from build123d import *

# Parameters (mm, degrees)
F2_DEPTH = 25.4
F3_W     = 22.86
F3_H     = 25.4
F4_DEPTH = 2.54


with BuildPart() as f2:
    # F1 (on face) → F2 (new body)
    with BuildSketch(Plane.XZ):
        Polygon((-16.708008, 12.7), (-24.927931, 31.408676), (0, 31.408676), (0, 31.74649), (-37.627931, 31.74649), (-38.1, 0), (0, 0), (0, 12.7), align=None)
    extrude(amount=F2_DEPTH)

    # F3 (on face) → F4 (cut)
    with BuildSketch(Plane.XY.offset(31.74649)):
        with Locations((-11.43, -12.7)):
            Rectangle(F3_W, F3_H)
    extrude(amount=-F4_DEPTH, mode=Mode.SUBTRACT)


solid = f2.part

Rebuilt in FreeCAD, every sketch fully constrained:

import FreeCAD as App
import Part
import Sketcher
from FreeCAD import Vector
Q = App.Units.Quantity

doc = App.newDocument("Part")
body = doc.addObject("PartDesign::Body", "Body")

# Sketch on XZ plane
sketch1 = doc.addObject("Sketcher::SketchObject", "Sketch")
body.addObject(sketch1)
sketch1.AttachmentSupport = (doc.XZ_Plane, [""])
sketch1.MapMode = "FlatFace"
sketch1.addGeometry([
    Part.LineSegment(Vector(-16.71, 12.7, 0), Vector(-24.93, 31.41, 0)),  # 0
    Part.LineSegment(Vector(-24.93, 31.41, 0), Vector(0, 31.41, 0)),  # 1
    Part.LineSegment(Vector(0, 31.41, 0), Vector(0, 31.75, 0)),  # 2
    Part.LineSegment(Vector(0, 31.75, 0), Vector(-37.63, 31.75, 0)),  # 3
    Part.LineSegment(Vector(-37.63, 31.75, 0), Vector(-38.1, 0, 0)),  # 4
    Part.LineSegment(Vector(-38.1, 0, 0), Vector(0, 0, 0)),  # 5
    Part.LineSegment(Vector(0, 0, 0), Vector(0, 12.7, 0)),  # 6
    Part.LineSegment(Vector(0, 12.7, 0), Vector(-16.71, 12.7, 0)),  # 7
], False)
sketch1.addConstraint([
    Sketcher.Constraint("Coincident", 0, 2, 1, 1),
    Sketcher.Constraint("Coincident", 1, 2, 2, 1),
    Sketcher.Constraint("Coincident", 2, 2, 3, 1),
    Sketcher.Constraint("Coincident", 3, 2, 4, 1),
    Sketcher.Constraint("Coincident", 4, 2, 5, 1),
    Sketcher.Constraint("Coincident", 5, 2, 6, 1),
    Sketcher.Constraint("Coincident", 6, 2, 7, 1),
    Sketcher.Constraint("Coincident", 7, 2, 0, 1),
    Sketcher.Constraint("Horizontal", 1),
    Sketcher.Constraint("Vertical", 2),
    Sketcher.Constraint("Horizontal", 3),
    Sketcher.Constraint("Horizontal", 5),
    Sketcher.Constraint("Vertical", 6),
    Sketcher.Constraint("Horizontal", 7),
    Sketcher.Constraint("Coincident", 5, 2, -1, 1),
    Sketcher.Constraint("PointOnObject", 1, 2, -2),
    Sketcher.Constraint("DistanceX", 5, 1, 5, 2, Q("1.5 in")),
    Sketcher.Constraint("DistanceY", 6, 1, 6, 2, Q("0.5 in")),
    Sketcher.Constraint("DistanceX", 3, 2, 0, 2, Q("0.5 in")),
    Sketcher.Constraint("Distance", 4, Q("1.25 in")),
    Sketcher.Constraint("DistanceX", 1, 1, 1, 2, 24.927931),
    Sketcher.Constraint("DistanceX", 7, 2, 7, 1, 16.708008),
    Sketcher.Constraint("DistanceY", 2, 1, 2, 2, 0.337814),
])
pad1 = doc.addObject("PartDesign::Pad", "Pad")
body.addObject(pad1)
pad1.Profile = sketch1
pad1.Length = Q("1 in")

# Sketch on XY plane
sketch2 = doc.addObject("Sketcher::SketchObject", "Sketch001")
body.addObject(sketch2)
sketch2.AttachmentSupport = (doc.XY_Plane, [""])
sketch2.MapMode = "FlatFace"
sketch2.AttachmentOffset = App.Placement(Vector(0, 0, 31.74649), App.Rotation())
sketch2.addGeometry([
    Part.LineSegment(Vector(-23, 0, 0), Vector(-23, -25, 0)),
    Part.LineSegment(Vector(-23, -25, 0), Vector(0, -25, 0)),
    Part.LineSegment(Vector(0, -25, 0), Vector(0, 0, 0)),
    Part.LineSegment(Vector(0, 0, 0), Vector(-23, 0, 0)),
], False)
sketch2.addConstraint([
    Sketcher.Constraint("Coincident", 0, 2, 1, 1),
    Sketcher.Constraint("Coincident", 1, 2, 2, 1),
    Sketcher.Constraint("Coincident", 2, 2, 3, 1),
    Sketcher.Constraint("Coincident", 3, 2, 0, 1),
    Sketcher.Constraint("Vertical", 0),
    Sketcher.Constraint("Horizontal", 1),
    Sketcher.Constraint("Vertical", 2),
    Sketcher.Constraint("Horizontal", 3),
    Sketcher.Constraint("Coincident", 2, 2, -1, 1),
    Sketcher.Constraint("DistanceY", 0, 2, 0, 1, Q("1 in")),
    Sketcher.Constraint("DistanceX", 1, 1, 1, 2, Q("0.9 in")),
])
pocket1 = doc.addObject("PartDesign::Pocket", "Pocket")
body.addObject(pocket1)
pocket1.Profile = sketch2
pocket1.Length = Q("0.1 in")

doc.recompute()
